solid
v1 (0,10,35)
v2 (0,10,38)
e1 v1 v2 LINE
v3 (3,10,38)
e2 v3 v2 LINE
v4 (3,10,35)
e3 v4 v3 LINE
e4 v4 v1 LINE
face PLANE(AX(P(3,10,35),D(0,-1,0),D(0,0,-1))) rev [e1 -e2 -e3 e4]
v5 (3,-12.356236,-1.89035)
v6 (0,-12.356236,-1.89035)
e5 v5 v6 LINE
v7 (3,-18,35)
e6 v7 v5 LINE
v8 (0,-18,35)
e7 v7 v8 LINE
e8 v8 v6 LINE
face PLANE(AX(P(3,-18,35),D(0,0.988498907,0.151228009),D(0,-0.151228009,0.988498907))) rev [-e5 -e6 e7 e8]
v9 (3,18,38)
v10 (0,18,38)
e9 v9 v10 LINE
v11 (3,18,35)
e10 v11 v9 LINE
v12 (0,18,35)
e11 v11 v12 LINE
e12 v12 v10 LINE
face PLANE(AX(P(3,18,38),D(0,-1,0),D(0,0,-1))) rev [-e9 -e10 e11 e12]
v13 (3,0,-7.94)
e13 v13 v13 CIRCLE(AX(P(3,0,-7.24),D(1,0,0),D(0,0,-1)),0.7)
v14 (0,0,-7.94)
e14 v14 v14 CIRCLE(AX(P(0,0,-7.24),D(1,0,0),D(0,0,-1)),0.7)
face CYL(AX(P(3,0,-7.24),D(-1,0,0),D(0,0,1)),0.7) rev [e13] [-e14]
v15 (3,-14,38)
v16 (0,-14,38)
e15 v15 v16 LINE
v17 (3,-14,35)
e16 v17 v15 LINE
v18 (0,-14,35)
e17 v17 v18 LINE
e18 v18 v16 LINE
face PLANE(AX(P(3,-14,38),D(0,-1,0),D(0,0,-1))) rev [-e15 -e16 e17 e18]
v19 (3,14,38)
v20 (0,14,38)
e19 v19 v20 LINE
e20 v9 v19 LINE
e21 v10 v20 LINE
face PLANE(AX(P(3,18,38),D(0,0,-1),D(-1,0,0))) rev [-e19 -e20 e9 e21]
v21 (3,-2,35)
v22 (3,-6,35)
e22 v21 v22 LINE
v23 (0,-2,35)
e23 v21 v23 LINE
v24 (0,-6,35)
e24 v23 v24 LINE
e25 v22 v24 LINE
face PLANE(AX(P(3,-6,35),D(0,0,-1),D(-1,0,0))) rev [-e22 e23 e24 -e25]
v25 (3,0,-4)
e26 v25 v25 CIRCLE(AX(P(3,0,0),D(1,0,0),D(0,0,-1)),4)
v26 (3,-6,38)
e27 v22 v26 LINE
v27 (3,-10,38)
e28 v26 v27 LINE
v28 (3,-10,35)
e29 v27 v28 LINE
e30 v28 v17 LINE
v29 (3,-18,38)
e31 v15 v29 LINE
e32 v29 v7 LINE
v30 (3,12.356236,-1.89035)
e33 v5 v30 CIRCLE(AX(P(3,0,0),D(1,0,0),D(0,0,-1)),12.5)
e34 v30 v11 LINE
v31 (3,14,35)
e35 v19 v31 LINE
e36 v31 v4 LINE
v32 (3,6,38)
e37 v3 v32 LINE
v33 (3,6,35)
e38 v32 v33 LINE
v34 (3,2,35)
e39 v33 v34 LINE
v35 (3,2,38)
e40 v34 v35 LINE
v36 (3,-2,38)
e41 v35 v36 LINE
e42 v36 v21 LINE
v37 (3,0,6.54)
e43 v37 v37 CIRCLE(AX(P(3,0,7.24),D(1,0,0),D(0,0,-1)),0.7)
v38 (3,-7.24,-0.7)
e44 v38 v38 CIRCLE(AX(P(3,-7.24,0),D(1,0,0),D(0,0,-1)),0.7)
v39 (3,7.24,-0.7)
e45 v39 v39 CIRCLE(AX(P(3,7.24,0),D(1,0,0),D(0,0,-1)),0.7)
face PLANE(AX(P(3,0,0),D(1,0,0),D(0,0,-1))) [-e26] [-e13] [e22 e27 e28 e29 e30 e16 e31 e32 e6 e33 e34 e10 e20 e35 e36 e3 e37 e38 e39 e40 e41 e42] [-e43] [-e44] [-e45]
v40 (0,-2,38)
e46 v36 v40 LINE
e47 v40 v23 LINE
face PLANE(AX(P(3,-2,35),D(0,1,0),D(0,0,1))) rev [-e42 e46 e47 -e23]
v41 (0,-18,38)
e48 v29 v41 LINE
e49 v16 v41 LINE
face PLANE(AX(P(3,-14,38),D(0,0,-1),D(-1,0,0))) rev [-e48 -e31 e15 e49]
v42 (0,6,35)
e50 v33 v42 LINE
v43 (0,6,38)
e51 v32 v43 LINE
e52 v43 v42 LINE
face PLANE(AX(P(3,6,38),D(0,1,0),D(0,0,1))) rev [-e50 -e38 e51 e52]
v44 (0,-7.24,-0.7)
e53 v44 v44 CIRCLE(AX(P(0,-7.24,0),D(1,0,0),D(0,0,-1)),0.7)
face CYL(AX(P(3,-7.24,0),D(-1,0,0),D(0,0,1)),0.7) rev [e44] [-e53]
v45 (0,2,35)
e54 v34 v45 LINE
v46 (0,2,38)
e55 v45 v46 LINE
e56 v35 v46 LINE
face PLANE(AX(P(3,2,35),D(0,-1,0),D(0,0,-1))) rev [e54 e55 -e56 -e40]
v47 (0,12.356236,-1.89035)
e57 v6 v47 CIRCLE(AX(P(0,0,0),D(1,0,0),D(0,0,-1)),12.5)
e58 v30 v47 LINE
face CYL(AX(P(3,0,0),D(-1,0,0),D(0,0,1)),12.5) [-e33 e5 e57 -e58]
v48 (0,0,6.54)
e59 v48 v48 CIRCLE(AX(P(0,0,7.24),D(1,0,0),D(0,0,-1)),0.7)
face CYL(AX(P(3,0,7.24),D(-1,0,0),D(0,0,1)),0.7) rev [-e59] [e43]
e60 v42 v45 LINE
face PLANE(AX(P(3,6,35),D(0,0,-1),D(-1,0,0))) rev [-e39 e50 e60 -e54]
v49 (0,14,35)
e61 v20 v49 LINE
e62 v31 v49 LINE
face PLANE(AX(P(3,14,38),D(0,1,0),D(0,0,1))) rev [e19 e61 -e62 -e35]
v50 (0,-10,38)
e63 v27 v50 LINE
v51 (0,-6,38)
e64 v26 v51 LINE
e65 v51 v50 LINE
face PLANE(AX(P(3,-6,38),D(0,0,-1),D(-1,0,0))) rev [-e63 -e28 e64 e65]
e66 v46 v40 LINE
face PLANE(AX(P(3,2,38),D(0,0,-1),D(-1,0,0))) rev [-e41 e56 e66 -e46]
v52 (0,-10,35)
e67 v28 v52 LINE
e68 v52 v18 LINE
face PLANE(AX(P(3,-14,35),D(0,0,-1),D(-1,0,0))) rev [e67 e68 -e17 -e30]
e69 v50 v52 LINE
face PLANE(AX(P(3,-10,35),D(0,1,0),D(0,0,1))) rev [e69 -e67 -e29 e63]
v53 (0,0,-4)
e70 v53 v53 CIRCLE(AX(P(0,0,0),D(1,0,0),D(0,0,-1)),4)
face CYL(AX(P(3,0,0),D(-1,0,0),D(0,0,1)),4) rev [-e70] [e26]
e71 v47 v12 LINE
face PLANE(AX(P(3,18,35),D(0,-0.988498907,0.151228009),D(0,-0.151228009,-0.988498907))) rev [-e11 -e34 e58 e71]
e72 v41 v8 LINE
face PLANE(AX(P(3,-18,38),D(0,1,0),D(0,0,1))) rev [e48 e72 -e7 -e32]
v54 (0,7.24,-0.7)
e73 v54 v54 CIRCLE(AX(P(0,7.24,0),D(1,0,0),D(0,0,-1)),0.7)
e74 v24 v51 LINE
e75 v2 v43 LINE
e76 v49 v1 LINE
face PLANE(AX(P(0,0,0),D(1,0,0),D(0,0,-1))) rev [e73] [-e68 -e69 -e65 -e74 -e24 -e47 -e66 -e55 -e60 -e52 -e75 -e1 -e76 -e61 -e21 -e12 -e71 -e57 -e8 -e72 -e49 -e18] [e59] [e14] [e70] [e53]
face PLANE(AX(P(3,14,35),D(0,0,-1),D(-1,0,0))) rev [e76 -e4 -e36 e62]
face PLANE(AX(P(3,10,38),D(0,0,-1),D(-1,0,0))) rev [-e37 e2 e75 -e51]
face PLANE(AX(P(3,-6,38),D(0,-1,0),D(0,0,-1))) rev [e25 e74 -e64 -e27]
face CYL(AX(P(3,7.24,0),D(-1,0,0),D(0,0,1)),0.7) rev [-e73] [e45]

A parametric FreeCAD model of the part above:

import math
import FreeCAD as App
import Part
import Sketcher
from FreeCAD import Vector
Q = App.Units.Quantity

doc = App.newDocument("Part")
body = doc.addObject("PartDesign::Body", "Body")

# Sketch on YZ plane
sketch1 = doc.addObject("Sketcher::SketchObject", "Sketch")
body.addObject(sketch1)
sketch1.AttachmentSupport = (doc.YZ_Plane, [""])
sketch1.MapMode = "FlatFace"
sketch1.addGeometry([
    Part.LineSegment(Vector(18, 35, 0), Vector(18, 38, 0)),  # 0
    Part.LineSegment(Vector(18, 38, 0), Vector(14, 38, 0)),  # 1
    Part.LineSegment(Vector(14, 38, 0), Vector(14, 35, 0)),  # 2
    Part.LineSegment(Vector(14, 35, 0), Vector(10, 35, 0)),  # 3
    Part.LineSegment(Vector(10, 35, 0), Vector(10, 38, 0)),  # 4
    Part.LineSegment(Vector(10, 38, 0), Vector(6, 38, 0)),  # 5
    Part.LineSegment(Vector(6, 38, 0), Vector(6, 35, 0)),  # 6
    Part.LineSegment(Vector(6, 35, 0), Vector(2, 35, 0)),  # 7
    Part.LineSegment(Vector(2, 35, 0), Vector(2, 38, 0)),  # 8
    Part.LineSegment(Vector(2, 38, 0), Vector(-2, 38, 0)),  # 9
    Part.LineSegment(Vector(-2, 38, 0), Vector(-2, 35, 0)),  # 10
    Part.LineSegment(Vector(-2, 35, 0), Vector(-6, 35, 0)),  # 11
    Part.LineSegment(Vector(-6, 35, 0), Vector(-6, 38, 0)),  # 12
    Part.LineSegment(Vector(-6, 38, 0), Vector(-10, 38, 0)),  # 13
    Part.LineSegment(Vector(-10, 38, 0), Vector(-10, 35, 0)),  # 14
    Part.LineSegment(Vector(-10, 35, 0), Vector(-14, 35, 0)),  # 15
    Part.LineSegment(Vector(-14, 35, 0), Vector(-14, 38, 0)),  # 16
    Part.LineSegment(Vector(-14, 38, 0), Vector(-18, 38, 0)),  # 17
    Part.LineSegment(Vector(-18, 38, 0), Vector(-18, 35, 0)),  # 18
    Part.LineSegment(Vector(-18, 35, 0), Vector(-12.356236, -1.89035, 0)),  # 19
    Part.ArcOfCircle(Part.Circle(Vector(0, 0, 0), Vector(0, 0, 1), 12.5), math.radians(-171.301902), math.radians(-8.698098)),  # 20
    Part.LineSegment(Vector(12.356236, -1.89035, 0), Vector(18, 35, 0)),  # 21
    Part.Circle(Vector(-7.24, 0, 0), Vector(0, 0, 1), 0.7),  # 22
    Part.Circle(Vector(0, -7.24, 0), Vector(0, 0, 1), 0.7),  # 23
    Part.Circle(Vector(0, 0, 0), Vector(0, 0, 1), 4),  # 24
    Part.Circle(Vector(7.24, 0, 0), Vector(0, 0, 1), 0.7),  # 25
    Part.Circle(Vector(0, 7.24, 0), Vector(0, 0, 1), 0.7),  # 26
], False)
sketch1.addConstraint([
    Sketcher.Constraint("Coincident", 0, 2, 1, 1),
    Sketcher.Constraint("Coincident", 1, 2, 2, 1),
    Sketcher.Constraint("Coincident", 2, 2, 3, 1),
    Sketcher.Constraint("Coincident", 3, 2, 4, 1),
    Sketcher.Constraint("Coincident", 4, 2, 5, 1),
    Sketcher.Constraint("Coincident", 5, 2, 6, 1),
    Sketcher.Constraint("Coincident", 6, 2, 7, 1),
    Sketcher.Constraint("Coincident", 7, 2, 8, 1),
    Sketcher.Constraint("Coincident", 8, 2, 9, 1),
    Sketcher.Constraint("Coincident", 9, 2, 10, 1),
    Sketcher.Constraint("Coincident", 10, 2, 11, 1),
    Sketcher.Constraint("Coincident", 11, 2, 12, 1),
    Sketcher.Constraint("Coincident", 12, 2, 13, 1),
    Sketcher.Constraint("Coincident", 13, 2, 14, 1),
    Sketcher.Constraint("Coincident", 14, 2, 15, 1),
    Sketcher.Constraint("Coincident", 15, 2, 16, 1),
    Sketcher.Constraint("Coincident", 16, 2, 17, 1),
    Sketcher.Constraint("Coincident", 17, 2, 18, 1),
    Sketcher.Constraint("Coincident", 18, 2, 19, 1),
    Sketcher.Constraint("Tangent", 19, 2, 20, 1),
    Sketcher.Constraint("Tangent", 20, 2, 21, 1),
    Sketcher.Constraint("Coincident", 21, 2, 0, 1),
    Sketcher.Constraint("Vertical", 0),
    Sketcher.Constraint("Horizontal", 1),
    Sketcher.Constraint("Vertical", 2),
    Sketcher.Constraint("Horizontal", 3),
    Sketcher.Constraint("Vertical", 4),
    Sketcher.Constraint("Horizontal", 5),
    Sketcher.Constraint("Vertical", 6),
    Sketcher.Constraint("Horizontal", 7),
    Sketcher.Constraint("Vertical", 8),
    Sketcher.Constraint("Horizontal", 9),
    Sketcher.Constraint("Vertical", 10),
    Sketcher.Constraint("Horizontal", 11),
    Sketcher.Constraint("Vertical", 12),
    Sketcher.Constraint("Horizontal", 13),
    Sketcher.Constraint("Vertical", 14),
    Sketcher.Constraint("Horizontal", 15),
    Sketcher.Constraint("Vertical", 16),
    Sketcher.Constraint("Horizontal", 17),
    Sketcher.Constraint("Vertical", 18),
    Sketcher.Constraint("Coincident", 20, 3, -1, 1),
    Sketcher.Constraint("Coincident", 24, 3, -1, 1),
    Sketcher.Constraint("Equal", 22, 23),
    Sketcher.Constraint("Equal", 23, 25),
    Sketcher.Constraint("Equal", 25, 26),
    Sketcher.Constraint("Symmetric", 22, 3, 25, 3, -1, 1),
    Sketcher.Constraint("Symmetric", 23, 3, 26, 3, -1, 1),
    Sketcher.Constraint("Symmetric", 7, 2, 10, 2, -2),
    Sketcher.Constraint("Symmetric", 5, 2, 12, 2, -2),
    Sketcher.Constraint("Symmetric", 3, 2, 14, 2, -2),
    Sketcher.Constraint("Symmetric", 1, 2, 16, 2, -2),
    Sketcher.Constraint("Symmetric", 18, 2, 21, 2, -2),
    Sketcher.Constraint("PointOnObject", 22, 3, -1),
    Sketcher.Constraint("PointOnObject", 23, 3, -2),
    Sketcher.Constraint("Horizontal", 1, 2, 4, 2),
    Sketcher.Constraint("Horizontal", 3, 2, 6, 2),
    Sketcher.Constraint("Horizontal", 5, 2, 8, 2),
    Sketcher.Constraint("Horizontal", 15, 2, 18, 2),
    Sketcher.Constraint("Equal", 1, 3),
    Sketcher.Constraint("Equal", 3, 5),
    Sketcher.Constraint("Equal", 5, 7),
    Sketcher.Constraint("Equal", 7, 9),
    Sketcher.Constraint("Diameter", 24, Q("8 mm")),
    Sketcher.Constraint("Diameter", 22, Q("1.4 mm")),
    Sketcher.Constraint("Radius", 20, Q("12.5 mm")),
    Sketcher.Constraint("DistanceX", 1, 2, 1, 1, Q("4 mm")),
    Sketcher.Constraint("DistanceY", 0, 1, 0, 2, Q("3 mm")),
    Sketcher.Constraint("DistanceY", -1, 1, 0, 2, Q("38 mm")),
    Sketcher.Constraint("DistanceX", 22, 3, -1, 1, Q("7.24 mm")),
    Sketcher.Constraint("DistanceY", 23, 3, -1, 1, Q("7.24 mm")),
])
pad1 = doc.addObject("PartDesign::Pad", "Pad")
body.addObject(pad1)
pad1.Profile = sketch1
pad1.Length = 3

doc.recompute()
